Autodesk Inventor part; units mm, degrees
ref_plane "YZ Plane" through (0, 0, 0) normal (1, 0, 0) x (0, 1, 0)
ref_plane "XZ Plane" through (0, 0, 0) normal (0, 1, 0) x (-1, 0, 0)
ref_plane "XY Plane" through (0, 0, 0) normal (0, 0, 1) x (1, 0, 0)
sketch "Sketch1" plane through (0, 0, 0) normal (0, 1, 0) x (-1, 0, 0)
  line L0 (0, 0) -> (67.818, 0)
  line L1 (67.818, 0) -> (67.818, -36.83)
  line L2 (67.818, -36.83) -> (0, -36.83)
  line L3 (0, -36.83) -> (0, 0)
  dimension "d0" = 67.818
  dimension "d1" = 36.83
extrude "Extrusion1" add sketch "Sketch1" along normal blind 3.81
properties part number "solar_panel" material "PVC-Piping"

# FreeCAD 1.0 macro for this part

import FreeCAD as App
import Part
import Sketcher

V = App.Vector
Q = App.Units.Quantity

doc = App.newDocument("Part")
body = doc.addObject("PartDesign::Body", "Body")

sketch1 = body.newObject("Sketcher::SketchObject", "Sketch")
sketch1.AttachmentSupport = (doc.getObject("XZ_Plane"), [""])
sketch1.MapMode = "FlatFace"
sketch1.addGeometry(Part.LineSegment(V(-68, 0, 0), V(0, 0, 0)), False)
sketch1.addGeometry(Part.LineSegment(V(0, 0, 0), V(0, -37, 0)), False)
sketch1.addGeometry(Part.LineSegment(V(0, -37, 0), V(-68, -37, 0)), False)
sketch1.addGeometry(Part.LineSegment(V(-68, -37, 0), V(-68, 0, 0)), False)
sketch1.addConstraint(Sketcher.Constraint("Coincident", 0, 2, 1, 1))
sketch1.addConstraint(Sketcher.Constraint("Coincident", 1, 2, 2, 1))
sketch1.addConstraint(Sketcher.Constraint("Coincident", 2, 2, 3, 1))
sketch1.addConstraint(Sketcher.Constraint("Coincident", 3, 2, 0, 1))
sketch1.addConstraint(Sketcher.Constraint("Horizontal", 0))
sketch1.addConstraint(Sketcher.Constraint("Vertical", 1))
sketch1.addConstraint(Sketcher.Constraint("Horizontal", 2))
sketch1.addConstraint(Sketcher.Constraint("Vertical", 3))
sketch1.addConstraint(Sketcher.Constraint("Coincident", 0, 2, -1, 1))
sketch1.addConstraint(Sketcher.Constraint("DistanceX", 0, 1, 0, 2, Q("2.67 in")))
sketch1.addConstraint(Sketcher.Constraint("DistanceY", 1, 2, 1, 1, Q("1.45 in")))
pad1 = body.newObject("PartDesign::Pad", "Pad")
pad1.Profile = sketch1
pad1.Length = Q("0.15 in")
pad1.Reversed = True

doc.recompute()
